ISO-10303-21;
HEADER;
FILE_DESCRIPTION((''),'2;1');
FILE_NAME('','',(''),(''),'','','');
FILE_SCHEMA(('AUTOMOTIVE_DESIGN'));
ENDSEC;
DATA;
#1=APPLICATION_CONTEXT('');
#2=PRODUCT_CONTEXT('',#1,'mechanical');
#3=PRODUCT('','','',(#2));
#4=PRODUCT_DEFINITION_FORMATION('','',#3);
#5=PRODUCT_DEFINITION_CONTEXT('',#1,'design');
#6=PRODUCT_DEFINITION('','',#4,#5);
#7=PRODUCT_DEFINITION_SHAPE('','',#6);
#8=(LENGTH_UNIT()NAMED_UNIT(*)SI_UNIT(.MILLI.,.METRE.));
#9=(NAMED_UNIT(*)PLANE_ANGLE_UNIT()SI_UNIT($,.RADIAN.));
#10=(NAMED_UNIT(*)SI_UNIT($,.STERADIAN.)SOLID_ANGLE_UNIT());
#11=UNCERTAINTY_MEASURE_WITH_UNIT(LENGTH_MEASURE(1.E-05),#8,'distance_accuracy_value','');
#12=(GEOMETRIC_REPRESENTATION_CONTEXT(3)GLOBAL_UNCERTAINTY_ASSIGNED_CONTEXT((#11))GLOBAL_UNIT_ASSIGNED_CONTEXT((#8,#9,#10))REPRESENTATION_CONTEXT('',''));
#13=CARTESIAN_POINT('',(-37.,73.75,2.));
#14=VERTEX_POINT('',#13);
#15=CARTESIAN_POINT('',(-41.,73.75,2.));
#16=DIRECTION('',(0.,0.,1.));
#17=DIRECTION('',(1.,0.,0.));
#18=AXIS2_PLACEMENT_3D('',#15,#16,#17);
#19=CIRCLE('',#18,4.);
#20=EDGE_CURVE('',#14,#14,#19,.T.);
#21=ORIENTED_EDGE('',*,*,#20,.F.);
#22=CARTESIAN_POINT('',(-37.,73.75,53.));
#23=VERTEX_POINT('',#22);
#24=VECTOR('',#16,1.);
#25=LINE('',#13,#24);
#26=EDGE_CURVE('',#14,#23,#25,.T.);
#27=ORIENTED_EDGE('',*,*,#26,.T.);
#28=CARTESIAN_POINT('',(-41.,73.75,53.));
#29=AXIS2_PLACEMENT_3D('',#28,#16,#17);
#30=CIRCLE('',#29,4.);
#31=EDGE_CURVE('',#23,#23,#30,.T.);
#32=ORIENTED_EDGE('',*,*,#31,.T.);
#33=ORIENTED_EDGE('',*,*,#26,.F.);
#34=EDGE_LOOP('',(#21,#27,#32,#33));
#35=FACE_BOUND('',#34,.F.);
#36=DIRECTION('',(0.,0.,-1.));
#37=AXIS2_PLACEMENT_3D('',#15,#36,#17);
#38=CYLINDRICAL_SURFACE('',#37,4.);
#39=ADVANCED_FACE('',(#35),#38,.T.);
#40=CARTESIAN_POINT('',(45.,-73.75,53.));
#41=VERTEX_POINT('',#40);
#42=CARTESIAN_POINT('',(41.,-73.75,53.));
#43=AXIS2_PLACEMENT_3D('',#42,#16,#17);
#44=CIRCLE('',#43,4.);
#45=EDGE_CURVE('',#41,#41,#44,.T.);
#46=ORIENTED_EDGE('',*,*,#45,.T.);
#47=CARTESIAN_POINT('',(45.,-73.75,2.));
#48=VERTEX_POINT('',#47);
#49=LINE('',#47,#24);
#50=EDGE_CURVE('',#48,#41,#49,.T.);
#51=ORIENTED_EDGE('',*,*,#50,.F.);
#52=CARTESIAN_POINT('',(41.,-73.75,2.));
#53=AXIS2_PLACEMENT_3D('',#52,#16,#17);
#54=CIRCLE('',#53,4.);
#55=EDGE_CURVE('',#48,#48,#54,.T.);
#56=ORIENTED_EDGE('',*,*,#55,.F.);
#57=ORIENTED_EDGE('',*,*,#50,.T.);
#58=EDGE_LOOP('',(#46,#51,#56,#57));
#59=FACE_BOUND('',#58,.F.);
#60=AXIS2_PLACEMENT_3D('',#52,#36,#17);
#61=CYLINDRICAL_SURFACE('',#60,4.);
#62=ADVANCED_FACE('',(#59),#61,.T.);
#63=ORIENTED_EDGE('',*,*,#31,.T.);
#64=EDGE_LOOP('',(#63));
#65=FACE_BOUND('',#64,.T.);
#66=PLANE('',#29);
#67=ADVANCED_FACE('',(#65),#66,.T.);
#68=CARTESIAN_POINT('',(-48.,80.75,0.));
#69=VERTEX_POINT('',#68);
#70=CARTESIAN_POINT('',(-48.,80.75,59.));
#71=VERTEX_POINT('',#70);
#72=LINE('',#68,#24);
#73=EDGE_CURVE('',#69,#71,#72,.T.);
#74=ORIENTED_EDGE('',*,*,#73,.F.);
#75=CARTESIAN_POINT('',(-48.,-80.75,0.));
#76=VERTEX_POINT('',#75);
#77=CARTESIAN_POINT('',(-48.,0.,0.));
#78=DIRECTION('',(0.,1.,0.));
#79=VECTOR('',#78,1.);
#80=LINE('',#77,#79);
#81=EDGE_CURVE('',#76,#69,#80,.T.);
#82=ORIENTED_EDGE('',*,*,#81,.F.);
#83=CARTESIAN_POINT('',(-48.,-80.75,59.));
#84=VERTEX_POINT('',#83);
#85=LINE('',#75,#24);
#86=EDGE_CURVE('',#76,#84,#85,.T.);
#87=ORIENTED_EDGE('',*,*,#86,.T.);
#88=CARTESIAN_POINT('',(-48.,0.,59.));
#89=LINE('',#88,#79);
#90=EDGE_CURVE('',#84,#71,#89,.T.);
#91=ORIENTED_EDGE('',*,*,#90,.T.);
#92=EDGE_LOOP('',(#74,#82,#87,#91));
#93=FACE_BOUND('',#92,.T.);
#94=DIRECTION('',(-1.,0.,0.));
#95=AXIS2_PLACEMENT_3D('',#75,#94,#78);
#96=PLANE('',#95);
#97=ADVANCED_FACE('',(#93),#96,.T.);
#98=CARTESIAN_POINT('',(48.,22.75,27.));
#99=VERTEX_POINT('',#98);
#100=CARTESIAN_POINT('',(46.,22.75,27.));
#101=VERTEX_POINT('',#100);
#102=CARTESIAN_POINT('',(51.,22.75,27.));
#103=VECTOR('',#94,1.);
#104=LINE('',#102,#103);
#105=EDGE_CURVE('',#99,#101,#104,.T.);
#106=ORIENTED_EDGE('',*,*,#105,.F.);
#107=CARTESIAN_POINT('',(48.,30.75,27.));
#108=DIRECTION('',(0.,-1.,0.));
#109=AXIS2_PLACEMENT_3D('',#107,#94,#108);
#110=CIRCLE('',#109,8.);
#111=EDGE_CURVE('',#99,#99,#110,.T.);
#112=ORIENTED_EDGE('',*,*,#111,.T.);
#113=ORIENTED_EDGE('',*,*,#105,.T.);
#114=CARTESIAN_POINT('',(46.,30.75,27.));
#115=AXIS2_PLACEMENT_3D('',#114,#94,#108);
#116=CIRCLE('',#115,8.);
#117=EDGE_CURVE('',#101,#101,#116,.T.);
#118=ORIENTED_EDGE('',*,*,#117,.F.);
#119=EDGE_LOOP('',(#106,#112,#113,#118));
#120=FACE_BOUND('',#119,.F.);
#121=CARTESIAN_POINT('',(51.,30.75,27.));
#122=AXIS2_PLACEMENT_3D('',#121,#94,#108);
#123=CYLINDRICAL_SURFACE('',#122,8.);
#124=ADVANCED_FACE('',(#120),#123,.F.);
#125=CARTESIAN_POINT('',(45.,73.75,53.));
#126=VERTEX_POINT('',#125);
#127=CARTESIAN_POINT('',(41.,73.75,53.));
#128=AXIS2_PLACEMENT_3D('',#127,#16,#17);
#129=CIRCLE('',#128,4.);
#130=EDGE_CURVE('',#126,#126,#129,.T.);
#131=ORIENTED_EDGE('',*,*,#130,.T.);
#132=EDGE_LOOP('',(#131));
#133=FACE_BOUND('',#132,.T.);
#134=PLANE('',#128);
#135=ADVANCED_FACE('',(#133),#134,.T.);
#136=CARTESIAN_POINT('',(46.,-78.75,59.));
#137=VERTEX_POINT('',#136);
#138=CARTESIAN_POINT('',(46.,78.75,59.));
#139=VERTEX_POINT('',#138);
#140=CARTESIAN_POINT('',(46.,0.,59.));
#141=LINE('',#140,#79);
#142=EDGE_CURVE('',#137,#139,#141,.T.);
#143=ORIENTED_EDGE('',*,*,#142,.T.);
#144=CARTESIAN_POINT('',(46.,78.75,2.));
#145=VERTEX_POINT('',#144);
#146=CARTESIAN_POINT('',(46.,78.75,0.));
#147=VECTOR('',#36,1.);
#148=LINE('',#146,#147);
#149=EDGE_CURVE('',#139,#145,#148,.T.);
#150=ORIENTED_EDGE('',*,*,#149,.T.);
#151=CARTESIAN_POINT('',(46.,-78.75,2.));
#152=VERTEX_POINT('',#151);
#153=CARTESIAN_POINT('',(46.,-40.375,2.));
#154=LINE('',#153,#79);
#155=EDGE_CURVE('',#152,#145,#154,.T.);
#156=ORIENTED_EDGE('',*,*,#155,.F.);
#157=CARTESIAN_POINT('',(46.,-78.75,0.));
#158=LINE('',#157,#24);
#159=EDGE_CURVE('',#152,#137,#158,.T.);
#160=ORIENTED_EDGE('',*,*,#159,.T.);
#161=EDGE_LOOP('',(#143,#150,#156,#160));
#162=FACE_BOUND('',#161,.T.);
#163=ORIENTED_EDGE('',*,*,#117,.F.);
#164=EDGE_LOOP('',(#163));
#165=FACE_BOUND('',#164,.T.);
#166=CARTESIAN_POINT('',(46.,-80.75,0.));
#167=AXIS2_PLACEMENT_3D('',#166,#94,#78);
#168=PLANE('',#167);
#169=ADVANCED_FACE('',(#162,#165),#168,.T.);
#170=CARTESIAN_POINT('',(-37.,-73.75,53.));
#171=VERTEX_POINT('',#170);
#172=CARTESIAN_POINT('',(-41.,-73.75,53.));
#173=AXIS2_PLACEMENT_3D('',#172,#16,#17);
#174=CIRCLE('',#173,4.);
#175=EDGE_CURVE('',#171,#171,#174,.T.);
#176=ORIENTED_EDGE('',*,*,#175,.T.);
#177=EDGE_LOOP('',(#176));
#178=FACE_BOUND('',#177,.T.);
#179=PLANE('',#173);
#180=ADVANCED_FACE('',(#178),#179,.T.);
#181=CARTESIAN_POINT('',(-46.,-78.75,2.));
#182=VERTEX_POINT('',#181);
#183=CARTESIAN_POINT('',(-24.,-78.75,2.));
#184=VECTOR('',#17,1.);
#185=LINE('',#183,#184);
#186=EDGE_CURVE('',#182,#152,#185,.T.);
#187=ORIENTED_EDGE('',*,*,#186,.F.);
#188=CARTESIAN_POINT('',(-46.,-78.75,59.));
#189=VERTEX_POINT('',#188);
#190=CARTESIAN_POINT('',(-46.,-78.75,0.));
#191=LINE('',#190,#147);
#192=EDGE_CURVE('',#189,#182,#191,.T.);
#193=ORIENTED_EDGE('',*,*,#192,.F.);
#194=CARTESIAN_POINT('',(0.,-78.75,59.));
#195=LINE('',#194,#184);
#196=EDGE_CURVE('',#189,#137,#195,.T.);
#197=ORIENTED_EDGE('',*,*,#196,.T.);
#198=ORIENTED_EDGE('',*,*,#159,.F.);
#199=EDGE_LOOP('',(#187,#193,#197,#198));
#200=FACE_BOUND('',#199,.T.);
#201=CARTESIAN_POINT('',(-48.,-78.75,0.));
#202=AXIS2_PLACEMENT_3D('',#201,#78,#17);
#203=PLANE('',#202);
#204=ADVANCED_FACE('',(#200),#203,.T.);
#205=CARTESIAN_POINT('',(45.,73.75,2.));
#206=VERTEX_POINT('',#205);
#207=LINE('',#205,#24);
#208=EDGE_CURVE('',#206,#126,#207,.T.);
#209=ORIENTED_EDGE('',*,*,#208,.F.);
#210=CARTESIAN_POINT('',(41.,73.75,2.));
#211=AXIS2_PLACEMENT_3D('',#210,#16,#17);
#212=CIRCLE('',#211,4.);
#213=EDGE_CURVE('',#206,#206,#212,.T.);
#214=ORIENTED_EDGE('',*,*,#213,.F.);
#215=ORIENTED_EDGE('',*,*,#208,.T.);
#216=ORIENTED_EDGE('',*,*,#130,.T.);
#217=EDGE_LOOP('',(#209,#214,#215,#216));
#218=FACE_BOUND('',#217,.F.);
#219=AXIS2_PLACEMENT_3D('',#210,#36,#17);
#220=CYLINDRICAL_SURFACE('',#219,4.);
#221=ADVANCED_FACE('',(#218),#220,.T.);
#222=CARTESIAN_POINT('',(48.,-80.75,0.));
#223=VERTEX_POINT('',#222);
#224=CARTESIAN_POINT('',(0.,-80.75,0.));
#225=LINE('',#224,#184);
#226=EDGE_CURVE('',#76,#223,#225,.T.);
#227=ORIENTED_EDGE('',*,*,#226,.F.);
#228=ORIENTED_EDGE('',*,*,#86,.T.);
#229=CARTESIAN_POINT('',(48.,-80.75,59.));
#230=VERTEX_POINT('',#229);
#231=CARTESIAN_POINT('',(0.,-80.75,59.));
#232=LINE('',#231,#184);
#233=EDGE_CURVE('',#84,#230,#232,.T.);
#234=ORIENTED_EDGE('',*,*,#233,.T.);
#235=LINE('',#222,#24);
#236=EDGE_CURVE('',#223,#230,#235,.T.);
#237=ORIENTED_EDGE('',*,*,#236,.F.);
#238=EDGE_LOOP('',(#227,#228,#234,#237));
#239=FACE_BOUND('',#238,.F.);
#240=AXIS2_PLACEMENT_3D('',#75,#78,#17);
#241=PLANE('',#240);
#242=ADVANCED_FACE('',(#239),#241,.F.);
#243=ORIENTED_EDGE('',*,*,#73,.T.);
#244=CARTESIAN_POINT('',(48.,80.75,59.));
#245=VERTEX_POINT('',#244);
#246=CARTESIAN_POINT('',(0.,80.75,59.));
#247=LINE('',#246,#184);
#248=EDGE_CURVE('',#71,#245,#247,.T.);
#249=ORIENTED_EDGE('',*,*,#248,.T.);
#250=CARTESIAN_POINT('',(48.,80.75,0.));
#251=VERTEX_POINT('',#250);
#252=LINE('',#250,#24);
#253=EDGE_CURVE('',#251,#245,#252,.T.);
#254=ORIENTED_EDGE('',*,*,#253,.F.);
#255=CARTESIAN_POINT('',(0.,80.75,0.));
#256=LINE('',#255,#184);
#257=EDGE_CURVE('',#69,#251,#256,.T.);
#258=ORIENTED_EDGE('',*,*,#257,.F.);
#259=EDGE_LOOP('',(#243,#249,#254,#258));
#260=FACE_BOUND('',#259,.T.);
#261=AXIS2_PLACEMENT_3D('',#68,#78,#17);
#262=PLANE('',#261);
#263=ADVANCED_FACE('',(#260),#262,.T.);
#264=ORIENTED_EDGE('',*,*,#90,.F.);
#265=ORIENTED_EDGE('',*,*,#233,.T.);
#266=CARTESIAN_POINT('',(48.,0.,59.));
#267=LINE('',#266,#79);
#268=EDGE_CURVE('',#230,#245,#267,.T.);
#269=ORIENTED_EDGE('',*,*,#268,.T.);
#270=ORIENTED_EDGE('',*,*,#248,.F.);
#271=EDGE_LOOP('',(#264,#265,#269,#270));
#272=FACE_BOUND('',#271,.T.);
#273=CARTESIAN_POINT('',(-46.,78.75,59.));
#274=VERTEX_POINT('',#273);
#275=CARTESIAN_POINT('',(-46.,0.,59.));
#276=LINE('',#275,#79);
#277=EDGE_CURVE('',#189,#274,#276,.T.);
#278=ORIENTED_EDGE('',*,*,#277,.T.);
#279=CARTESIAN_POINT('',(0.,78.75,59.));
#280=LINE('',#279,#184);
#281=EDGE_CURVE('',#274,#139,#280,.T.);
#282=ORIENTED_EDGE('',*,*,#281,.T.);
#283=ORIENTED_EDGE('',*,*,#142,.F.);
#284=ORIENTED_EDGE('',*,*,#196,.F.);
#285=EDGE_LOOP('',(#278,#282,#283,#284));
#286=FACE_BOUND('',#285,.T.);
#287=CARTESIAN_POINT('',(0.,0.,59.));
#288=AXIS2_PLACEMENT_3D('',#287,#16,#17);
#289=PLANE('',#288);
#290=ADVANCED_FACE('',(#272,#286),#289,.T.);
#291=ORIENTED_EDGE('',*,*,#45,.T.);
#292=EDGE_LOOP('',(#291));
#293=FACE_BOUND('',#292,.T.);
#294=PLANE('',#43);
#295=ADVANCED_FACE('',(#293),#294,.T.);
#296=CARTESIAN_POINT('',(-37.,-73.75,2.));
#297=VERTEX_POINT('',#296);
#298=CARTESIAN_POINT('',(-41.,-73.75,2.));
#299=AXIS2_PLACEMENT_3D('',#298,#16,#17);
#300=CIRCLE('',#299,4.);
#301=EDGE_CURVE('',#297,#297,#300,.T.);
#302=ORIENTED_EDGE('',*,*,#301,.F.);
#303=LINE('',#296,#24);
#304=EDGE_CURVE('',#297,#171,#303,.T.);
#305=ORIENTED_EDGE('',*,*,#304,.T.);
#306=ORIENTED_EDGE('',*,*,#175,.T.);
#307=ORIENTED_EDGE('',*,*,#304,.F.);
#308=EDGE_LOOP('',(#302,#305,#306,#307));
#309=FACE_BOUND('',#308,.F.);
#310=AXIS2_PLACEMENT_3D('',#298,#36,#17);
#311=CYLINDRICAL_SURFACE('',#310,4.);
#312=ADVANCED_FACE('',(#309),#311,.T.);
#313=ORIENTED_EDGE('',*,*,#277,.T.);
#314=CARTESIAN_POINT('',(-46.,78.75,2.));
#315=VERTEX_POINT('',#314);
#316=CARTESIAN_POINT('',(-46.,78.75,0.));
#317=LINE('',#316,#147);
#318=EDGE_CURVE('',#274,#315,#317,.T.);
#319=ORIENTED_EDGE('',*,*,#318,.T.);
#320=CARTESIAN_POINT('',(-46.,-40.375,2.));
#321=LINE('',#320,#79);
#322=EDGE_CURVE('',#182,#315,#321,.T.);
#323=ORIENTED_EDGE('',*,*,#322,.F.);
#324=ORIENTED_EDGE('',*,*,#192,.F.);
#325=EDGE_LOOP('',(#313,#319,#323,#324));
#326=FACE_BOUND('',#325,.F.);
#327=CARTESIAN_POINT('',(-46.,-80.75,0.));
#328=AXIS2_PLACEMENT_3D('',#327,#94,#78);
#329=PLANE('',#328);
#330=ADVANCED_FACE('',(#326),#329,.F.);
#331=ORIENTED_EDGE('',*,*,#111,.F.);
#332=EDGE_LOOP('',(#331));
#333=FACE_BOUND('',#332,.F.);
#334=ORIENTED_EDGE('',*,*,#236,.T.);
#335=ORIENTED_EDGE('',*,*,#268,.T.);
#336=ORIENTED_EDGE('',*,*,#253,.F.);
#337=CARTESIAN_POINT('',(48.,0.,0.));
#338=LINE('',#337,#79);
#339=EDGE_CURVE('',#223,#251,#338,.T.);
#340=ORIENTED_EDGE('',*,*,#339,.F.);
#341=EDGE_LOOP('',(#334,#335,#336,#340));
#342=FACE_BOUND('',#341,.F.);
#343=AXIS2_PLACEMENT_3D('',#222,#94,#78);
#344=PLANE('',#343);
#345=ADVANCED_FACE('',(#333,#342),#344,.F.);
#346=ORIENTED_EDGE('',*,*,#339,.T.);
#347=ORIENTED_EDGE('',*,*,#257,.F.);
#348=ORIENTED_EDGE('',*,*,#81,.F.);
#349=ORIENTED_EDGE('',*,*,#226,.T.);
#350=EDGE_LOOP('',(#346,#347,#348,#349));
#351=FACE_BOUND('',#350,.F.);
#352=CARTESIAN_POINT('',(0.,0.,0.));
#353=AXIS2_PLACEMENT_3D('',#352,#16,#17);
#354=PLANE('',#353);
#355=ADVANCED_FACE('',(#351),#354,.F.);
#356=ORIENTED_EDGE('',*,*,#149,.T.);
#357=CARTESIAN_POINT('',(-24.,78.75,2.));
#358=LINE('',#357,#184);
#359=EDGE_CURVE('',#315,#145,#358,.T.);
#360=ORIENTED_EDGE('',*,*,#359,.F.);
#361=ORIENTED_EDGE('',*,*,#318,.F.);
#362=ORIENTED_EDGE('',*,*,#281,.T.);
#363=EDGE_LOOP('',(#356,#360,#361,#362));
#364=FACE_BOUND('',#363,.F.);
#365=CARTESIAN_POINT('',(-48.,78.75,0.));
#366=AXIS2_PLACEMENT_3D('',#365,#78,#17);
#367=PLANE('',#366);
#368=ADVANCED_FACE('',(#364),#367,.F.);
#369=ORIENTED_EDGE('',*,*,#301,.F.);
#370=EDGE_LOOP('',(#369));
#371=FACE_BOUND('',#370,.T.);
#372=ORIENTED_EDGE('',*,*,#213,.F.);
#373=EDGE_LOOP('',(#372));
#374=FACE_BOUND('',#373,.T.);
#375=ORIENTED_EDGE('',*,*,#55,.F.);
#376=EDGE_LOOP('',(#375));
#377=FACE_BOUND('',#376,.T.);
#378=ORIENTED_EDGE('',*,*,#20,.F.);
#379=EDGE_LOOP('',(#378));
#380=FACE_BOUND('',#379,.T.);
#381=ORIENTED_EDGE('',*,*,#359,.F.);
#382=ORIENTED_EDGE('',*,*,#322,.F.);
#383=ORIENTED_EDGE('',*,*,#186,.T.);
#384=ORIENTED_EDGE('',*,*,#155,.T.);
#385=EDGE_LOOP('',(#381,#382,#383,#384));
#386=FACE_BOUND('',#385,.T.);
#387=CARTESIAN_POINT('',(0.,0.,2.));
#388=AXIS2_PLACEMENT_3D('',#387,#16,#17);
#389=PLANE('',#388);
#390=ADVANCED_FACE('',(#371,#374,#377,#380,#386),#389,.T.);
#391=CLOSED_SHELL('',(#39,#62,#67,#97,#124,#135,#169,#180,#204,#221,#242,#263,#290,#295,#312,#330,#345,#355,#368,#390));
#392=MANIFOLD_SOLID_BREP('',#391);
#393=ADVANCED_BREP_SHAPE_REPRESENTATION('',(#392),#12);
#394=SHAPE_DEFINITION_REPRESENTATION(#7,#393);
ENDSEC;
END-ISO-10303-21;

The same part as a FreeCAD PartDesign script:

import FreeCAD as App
import Part
import Sketcher
from FreeCAD import Vector
Q = App.Units.Quantity


def faces_at(feature, points):
    """Names of the faces that lie closest to the given points."""
    faces = feature.Shape.Faces
    near = lambda p: min(range(len(faces)), key=lambda i: faces[i].distToShape(Part.Vertex(*p))[0])
    return sorted({f"Face{near(p) + 1}" for p in points})


def add_polygon(sketch, points):
    """Adds a closed chain of lines whose ends are joined by coincident constraints."""
    first, n = sketch.GeometryCount, len(points)
    for a, b in zip(points, points[1:] + points[:1]):
        sketch.addGeometry(Part.LineSegment(App.Vector(*a, 0), App.Vector(*b, 0)), False)
    for i in range(n):
        sketch.addConstraint(Sketcher.Constraint("Coincident", first + i, 2, first + (i + 1) % n, 1))

doc = App.newDocument("Part")
body = doc.addObject("PartDesign::Body", "Body")

# Sketch on XY plane
sketch1 = body.newObject("Sketcher::SketchObject", "Sketch")
sketch1.AttachmentSupport = (doc.getObject("XY_Plane"), [""])
sketch1.MapMode = "FlatFace"
add_polygon(sketch1, [(-48, 80.75), (-48, -80.75), (48, -80.75), (48, 80.75)])  # lines 0-3
sketch1.addConstraint(Sketcher.Constraint("Vertical", 0))
sketch1.addConstraint(Sketcher.Constraint("Horizontal", 1))
sketch1.addConstraint(Sketcher.Constraint("Vertical", 2))
sketch1.addConstraint(Sketcher.Constraint("Horizontal", 3))
sketch1.addConstraint(Sketcher.Constraint("Symmetric", 0, 2, 2, 2, -1, 1))
sketch1.addConstraint(Sketcher.Constraint("DistanceX", 1, 1, 1, 2, Q("96 mm")))
sketch1.addConstraint(Sketcher.Constraint("DistanceY", 0, 2, 0, 1, Q("161.5 mm")))
pad1 = body.newObject("PartDesign::Pad", "Pad")
pad1.Profile = sketch1
pad1.Length = 59
doc.recompute()

thickness = body.newObject("PartDesign::Thickness", "Thickness")
thickness.Base = (pad1, faces_at(pad1, [(0, 0, 59)]))
thickness.Value = 2
thickness.Reversed = True
thickness.Join = "Arc"

# Sketch on XY plane
sketch2 = body.newObject("Sketcher::SketchObject", "Sketch001")
sketch2.AttachmentSupport = (doc.getObject("XY_Plane"), [""])
sketch2.MapMode = "FlatFace"
sketch2.AttachmentOffset = App.Placement(Vector(0, 0, 2), App.Rotation())
sketch2.addGeometry(Part.Circle(Vector(-41, 73.75, 0), Vector(0, 0, 1), 4), False)
sketch2.addGeometry(Part.Circle(Vector(41, 73.75, 0), Vector(0, 0, 1), 4), False)
sketch2.addGeometry(Part.Circle(Vector(41, -73.75, 0), Vector(0, 0, 1), 4), False)
sketch2.addGeometry(Part.Circle(Vector(-41, -73.75, 0), Vector(0, 0, 1), 4), False)
sketch2.addConstraint(Sketcher.Constraint("Equal", 0, 1))
sketch2.addConstraint(Sketcher.Constraint("Equal", 1, 2))
sketch2.addConstraint(Sketcher.Constraint("Equal", 2, 3))
sketch2.addConstraint(Sketcher.Constraint("Symmetric", 0, 3, 2, 3, -1, 1))
sketch2.addConstraint(Sketcher.Constraint("Symmetric", 1, 3, 3, 3, -1, 1))
sketch2.addConstraint(Sketcher.Constraint("Symmetric", 0, 3, 1, 3, -2))
sketch2.addConstraint(Sketcher.Constraint("Diameter", 0, Q("8 mm")))
sketch2.addConstraint(Sketcher.Constraint("DistanceX", 0, 3, -1, 1, Q("41 mm")))
sketch2.addConstraint(Sketcher.Constraint("DistanceY", 2, 3, 1, 3, Q("147.5 mm")))
pad2 = body.newObject("PartDesign::Pad", "Pad001")
pad2.Profile = sketch2
pad2.Length = 51

# Sketch on YZ plane
sketch3 = body.newObject("Sketcher::SketchObject", "Sketch002")
sketch3.AttachmentSupport = (doc.getObject("YZ_Plane"), [""])
sketch3.MapMode = "FlatFace"
sketch3.AttachmentOffset = App.Placement(Vector(0, 0, 48), App.Rotation())
sketch3.addGeometry(Part.Circle(Vector(30.75, 27, 0), Vector(0, 0, 1), 8), False)
sketch3.addConstraint(Sketcher.Constraint("Diameter", 0, Q("16 mm")))
sketch3.addConstraint(Sketcher.Constraint("DistanceY", -1, 1, 0, 3, Q("27 mm")))
sketch3.addConstraint(Sketcher.Constraint("DistanceX", -1, 1, 0, 3, Q("30.75 mm")))
doc.recompute()
hole = body.newObject("PartDesign::Hole", "Hole")
hole.Profile = sketch3
hole.ThreadType = "None"
hole.Diameter = 16
hole.DepthType = "Dimension"
hole.Depth = 3
hole.DrillPoint = "Flat"

doc.recompute()
